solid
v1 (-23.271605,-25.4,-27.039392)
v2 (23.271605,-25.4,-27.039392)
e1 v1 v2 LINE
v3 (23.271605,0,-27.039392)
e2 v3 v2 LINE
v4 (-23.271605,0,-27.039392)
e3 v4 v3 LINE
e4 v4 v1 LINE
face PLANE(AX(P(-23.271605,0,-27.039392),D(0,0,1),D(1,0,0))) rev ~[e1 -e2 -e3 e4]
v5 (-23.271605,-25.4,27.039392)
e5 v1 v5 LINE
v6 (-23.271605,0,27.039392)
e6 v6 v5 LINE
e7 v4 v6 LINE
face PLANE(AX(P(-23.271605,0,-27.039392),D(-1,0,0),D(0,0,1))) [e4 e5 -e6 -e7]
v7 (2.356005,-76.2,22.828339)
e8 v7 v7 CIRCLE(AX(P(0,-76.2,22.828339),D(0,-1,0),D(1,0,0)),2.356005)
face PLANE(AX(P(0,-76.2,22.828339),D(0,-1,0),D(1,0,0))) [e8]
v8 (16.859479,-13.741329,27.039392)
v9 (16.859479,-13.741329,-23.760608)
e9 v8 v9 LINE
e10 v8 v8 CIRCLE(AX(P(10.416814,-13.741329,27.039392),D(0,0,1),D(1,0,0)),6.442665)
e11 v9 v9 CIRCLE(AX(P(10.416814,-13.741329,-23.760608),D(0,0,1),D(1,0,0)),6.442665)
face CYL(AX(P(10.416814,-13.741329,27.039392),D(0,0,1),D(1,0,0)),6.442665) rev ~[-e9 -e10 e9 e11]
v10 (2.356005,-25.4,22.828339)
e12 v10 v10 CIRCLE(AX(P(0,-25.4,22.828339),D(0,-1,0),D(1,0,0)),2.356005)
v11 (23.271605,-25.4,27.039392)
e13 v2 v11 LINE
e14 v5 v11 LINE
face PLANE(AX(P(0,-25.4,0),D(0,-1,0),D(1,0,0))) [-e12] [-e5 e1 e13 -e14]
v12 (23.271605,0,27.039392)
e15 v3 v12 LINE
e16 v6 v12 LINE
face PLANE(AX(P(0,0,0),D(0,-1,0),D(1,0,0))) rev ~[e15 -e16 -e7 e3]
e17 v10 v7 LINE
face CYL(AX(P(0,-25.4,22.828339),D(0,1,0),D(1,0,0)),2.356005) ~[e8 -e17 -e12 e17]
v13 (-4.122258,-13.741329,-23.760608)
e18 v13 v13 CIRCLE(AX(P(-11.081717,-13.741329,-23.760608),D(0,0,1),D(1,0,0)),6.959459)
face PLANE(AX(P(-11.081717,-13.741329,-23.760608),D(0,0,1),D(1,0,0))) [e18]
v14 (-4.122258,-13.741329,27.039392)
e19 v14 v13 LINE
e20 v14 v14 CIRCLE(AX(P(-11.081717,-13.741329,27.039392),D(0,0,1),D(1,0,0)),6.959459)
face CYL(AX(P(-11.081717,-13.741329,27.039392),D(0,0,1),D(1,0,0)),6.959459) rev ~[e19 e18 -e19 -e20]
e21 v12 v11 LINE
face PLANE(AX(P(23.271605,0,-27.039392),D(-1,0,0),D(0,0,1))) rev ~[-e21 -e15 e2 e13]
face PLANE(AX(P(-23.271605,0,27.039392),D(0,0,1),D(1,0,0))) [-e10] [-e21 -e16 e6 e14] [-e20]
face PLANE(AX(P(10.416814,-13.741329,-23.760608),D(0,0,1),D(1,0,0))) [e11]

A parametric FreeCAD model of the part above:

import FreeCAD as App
import Part
import Sketcher
from FreeCAD import Vector
Q = App.Units.Quantity

doc = App.newDocument("Part")
body = doc.addObject("PartDesign::Body", "Body")

# Sketch on XZ plane
sketch1 = body.newObject("Sketcher::SketchObject", "Sketch")
sketch1.AttachmentSupport = (doc.getObject("XZ_Plane"), [""])
sketch1.MapMode = "FlatFace"
sketch1.addGeometry([
    Part.LineSegment(Vector(-23, 27, 0), Vector(-23, -27, 0)),
    Part.LineSegment(Vector(-23, -27, 0), Vector(23, -27, 0)),
    Part.LineSegment(Vector(23, -27, 0), Vector(23, 27, 0)),
    Part.LineSegment(Vector(23, 27, 0), Vector(-23, 27, 0)),
], False)
sketch1.addConstraint([
    Sketcher.Constraint("Coincident", 0, 2, 1, 1),
    Sketcher.Constraint("Coincident", 1, 2, 2, 1),
    Sketcher.Constraint("Coincident", 2, 2, 3, 1),
    Sketcher.Constraint("Coincident", 3, 2, 0, 1),
    Sketcher.Constraint("Vertical", 0),
    Sketcher.Constraint("Horizontal", 1),
    Sketcher.Constraint("Vertical", 2),
    Sketcher.Constraint("Horizontal", 3),
    Sketcher.Constraint("Symmetric", 0, 2, 2, 2, -1, 1),
    Sketcher.Constraint("DistanceX", 1, 1, 1, 2, 46.54321),
    Sketcher.Constraint("DistanceY", 0, 2, 0, 1, 54.078784),
])
pad1 = body.newObject("PartDesign::Pad", "Pad")
pad1.Profile = sketch1
pad1.Length = Q("1 in")

# Sketch on XY plane
sketch2 = body.newObject("Sketcher::SketchObject", "Sketch001")
sketch2.AttachmentSupport = (doc.getObject("XY_Plane"), [""])
sketch2.MapMode = "FlatFace"
sketch2.AttachmentOffset = App.Placement(Vector(0, 0, 27.039392), App.Rotation())
sketch2.addGeometry([
    Part.Circle(Vector(-11, -14, 0), Vector(0, 0, 1), 7),
    Part.Circle(Vector(10, -14, 0), Vector(0, 0, 1), 6),
], False)
sketch2.addConstraint([
    Sketcher.Constraint("Horizontal", 0, 3, 1, 3),
    Sketcher.Constraint("Diameter", 1, 12.88533),
    Sketcher.Constraint("Diameter", 0, 13.918918),
    Sketcher.Constraint("DistanceY", 0, 3, -1, 1, 13.741329),
    Sketcher.Constraint("DistanceX", 0, 3, 1, 3, 21.498531),
    Sketcher.Constraint("DistanceX", 0, 3, -1, 1, 11.081717),
])
pocket1 = body.newObject("PartDesign::Pocket", "Pocket")
pocket1.Profile = sketch2
pocket1.Length = Q("2 in")

# Sketch on XZ plane
sketch3 = body.newObject("Sketcher::SketchObject", "Sketch002")
sketch3.AttachmentSupport = (doc.getObject("XZ_Plane"), [""])
sketch3.MapMode = "FlatFace"
sketch3.AttachmentOffset = App.Placement(Vector(0, 0, 1 * 25.4), App.Rotation())
sketch3.addGeometry(Part.Circle(Vector(0, 22.8, 0), Vector(0, 0, 1), 2.4), False)
sketch3.addConstraint([
    Sketcher.Constraint("PointOnObject", 0, 3, -2),
    Sketcher.Constraint("Diameter", 0, 4.71201),
    Sketcher.Constraint("DistanceY", -1, 1, 0, 3, 22.828339),
])
pad2 = body.newObject("PartDesign::Pad", "Pad001")
pad2.Profile = sketch3
pad2.Length = Q("2 in")

doc.recompute()
